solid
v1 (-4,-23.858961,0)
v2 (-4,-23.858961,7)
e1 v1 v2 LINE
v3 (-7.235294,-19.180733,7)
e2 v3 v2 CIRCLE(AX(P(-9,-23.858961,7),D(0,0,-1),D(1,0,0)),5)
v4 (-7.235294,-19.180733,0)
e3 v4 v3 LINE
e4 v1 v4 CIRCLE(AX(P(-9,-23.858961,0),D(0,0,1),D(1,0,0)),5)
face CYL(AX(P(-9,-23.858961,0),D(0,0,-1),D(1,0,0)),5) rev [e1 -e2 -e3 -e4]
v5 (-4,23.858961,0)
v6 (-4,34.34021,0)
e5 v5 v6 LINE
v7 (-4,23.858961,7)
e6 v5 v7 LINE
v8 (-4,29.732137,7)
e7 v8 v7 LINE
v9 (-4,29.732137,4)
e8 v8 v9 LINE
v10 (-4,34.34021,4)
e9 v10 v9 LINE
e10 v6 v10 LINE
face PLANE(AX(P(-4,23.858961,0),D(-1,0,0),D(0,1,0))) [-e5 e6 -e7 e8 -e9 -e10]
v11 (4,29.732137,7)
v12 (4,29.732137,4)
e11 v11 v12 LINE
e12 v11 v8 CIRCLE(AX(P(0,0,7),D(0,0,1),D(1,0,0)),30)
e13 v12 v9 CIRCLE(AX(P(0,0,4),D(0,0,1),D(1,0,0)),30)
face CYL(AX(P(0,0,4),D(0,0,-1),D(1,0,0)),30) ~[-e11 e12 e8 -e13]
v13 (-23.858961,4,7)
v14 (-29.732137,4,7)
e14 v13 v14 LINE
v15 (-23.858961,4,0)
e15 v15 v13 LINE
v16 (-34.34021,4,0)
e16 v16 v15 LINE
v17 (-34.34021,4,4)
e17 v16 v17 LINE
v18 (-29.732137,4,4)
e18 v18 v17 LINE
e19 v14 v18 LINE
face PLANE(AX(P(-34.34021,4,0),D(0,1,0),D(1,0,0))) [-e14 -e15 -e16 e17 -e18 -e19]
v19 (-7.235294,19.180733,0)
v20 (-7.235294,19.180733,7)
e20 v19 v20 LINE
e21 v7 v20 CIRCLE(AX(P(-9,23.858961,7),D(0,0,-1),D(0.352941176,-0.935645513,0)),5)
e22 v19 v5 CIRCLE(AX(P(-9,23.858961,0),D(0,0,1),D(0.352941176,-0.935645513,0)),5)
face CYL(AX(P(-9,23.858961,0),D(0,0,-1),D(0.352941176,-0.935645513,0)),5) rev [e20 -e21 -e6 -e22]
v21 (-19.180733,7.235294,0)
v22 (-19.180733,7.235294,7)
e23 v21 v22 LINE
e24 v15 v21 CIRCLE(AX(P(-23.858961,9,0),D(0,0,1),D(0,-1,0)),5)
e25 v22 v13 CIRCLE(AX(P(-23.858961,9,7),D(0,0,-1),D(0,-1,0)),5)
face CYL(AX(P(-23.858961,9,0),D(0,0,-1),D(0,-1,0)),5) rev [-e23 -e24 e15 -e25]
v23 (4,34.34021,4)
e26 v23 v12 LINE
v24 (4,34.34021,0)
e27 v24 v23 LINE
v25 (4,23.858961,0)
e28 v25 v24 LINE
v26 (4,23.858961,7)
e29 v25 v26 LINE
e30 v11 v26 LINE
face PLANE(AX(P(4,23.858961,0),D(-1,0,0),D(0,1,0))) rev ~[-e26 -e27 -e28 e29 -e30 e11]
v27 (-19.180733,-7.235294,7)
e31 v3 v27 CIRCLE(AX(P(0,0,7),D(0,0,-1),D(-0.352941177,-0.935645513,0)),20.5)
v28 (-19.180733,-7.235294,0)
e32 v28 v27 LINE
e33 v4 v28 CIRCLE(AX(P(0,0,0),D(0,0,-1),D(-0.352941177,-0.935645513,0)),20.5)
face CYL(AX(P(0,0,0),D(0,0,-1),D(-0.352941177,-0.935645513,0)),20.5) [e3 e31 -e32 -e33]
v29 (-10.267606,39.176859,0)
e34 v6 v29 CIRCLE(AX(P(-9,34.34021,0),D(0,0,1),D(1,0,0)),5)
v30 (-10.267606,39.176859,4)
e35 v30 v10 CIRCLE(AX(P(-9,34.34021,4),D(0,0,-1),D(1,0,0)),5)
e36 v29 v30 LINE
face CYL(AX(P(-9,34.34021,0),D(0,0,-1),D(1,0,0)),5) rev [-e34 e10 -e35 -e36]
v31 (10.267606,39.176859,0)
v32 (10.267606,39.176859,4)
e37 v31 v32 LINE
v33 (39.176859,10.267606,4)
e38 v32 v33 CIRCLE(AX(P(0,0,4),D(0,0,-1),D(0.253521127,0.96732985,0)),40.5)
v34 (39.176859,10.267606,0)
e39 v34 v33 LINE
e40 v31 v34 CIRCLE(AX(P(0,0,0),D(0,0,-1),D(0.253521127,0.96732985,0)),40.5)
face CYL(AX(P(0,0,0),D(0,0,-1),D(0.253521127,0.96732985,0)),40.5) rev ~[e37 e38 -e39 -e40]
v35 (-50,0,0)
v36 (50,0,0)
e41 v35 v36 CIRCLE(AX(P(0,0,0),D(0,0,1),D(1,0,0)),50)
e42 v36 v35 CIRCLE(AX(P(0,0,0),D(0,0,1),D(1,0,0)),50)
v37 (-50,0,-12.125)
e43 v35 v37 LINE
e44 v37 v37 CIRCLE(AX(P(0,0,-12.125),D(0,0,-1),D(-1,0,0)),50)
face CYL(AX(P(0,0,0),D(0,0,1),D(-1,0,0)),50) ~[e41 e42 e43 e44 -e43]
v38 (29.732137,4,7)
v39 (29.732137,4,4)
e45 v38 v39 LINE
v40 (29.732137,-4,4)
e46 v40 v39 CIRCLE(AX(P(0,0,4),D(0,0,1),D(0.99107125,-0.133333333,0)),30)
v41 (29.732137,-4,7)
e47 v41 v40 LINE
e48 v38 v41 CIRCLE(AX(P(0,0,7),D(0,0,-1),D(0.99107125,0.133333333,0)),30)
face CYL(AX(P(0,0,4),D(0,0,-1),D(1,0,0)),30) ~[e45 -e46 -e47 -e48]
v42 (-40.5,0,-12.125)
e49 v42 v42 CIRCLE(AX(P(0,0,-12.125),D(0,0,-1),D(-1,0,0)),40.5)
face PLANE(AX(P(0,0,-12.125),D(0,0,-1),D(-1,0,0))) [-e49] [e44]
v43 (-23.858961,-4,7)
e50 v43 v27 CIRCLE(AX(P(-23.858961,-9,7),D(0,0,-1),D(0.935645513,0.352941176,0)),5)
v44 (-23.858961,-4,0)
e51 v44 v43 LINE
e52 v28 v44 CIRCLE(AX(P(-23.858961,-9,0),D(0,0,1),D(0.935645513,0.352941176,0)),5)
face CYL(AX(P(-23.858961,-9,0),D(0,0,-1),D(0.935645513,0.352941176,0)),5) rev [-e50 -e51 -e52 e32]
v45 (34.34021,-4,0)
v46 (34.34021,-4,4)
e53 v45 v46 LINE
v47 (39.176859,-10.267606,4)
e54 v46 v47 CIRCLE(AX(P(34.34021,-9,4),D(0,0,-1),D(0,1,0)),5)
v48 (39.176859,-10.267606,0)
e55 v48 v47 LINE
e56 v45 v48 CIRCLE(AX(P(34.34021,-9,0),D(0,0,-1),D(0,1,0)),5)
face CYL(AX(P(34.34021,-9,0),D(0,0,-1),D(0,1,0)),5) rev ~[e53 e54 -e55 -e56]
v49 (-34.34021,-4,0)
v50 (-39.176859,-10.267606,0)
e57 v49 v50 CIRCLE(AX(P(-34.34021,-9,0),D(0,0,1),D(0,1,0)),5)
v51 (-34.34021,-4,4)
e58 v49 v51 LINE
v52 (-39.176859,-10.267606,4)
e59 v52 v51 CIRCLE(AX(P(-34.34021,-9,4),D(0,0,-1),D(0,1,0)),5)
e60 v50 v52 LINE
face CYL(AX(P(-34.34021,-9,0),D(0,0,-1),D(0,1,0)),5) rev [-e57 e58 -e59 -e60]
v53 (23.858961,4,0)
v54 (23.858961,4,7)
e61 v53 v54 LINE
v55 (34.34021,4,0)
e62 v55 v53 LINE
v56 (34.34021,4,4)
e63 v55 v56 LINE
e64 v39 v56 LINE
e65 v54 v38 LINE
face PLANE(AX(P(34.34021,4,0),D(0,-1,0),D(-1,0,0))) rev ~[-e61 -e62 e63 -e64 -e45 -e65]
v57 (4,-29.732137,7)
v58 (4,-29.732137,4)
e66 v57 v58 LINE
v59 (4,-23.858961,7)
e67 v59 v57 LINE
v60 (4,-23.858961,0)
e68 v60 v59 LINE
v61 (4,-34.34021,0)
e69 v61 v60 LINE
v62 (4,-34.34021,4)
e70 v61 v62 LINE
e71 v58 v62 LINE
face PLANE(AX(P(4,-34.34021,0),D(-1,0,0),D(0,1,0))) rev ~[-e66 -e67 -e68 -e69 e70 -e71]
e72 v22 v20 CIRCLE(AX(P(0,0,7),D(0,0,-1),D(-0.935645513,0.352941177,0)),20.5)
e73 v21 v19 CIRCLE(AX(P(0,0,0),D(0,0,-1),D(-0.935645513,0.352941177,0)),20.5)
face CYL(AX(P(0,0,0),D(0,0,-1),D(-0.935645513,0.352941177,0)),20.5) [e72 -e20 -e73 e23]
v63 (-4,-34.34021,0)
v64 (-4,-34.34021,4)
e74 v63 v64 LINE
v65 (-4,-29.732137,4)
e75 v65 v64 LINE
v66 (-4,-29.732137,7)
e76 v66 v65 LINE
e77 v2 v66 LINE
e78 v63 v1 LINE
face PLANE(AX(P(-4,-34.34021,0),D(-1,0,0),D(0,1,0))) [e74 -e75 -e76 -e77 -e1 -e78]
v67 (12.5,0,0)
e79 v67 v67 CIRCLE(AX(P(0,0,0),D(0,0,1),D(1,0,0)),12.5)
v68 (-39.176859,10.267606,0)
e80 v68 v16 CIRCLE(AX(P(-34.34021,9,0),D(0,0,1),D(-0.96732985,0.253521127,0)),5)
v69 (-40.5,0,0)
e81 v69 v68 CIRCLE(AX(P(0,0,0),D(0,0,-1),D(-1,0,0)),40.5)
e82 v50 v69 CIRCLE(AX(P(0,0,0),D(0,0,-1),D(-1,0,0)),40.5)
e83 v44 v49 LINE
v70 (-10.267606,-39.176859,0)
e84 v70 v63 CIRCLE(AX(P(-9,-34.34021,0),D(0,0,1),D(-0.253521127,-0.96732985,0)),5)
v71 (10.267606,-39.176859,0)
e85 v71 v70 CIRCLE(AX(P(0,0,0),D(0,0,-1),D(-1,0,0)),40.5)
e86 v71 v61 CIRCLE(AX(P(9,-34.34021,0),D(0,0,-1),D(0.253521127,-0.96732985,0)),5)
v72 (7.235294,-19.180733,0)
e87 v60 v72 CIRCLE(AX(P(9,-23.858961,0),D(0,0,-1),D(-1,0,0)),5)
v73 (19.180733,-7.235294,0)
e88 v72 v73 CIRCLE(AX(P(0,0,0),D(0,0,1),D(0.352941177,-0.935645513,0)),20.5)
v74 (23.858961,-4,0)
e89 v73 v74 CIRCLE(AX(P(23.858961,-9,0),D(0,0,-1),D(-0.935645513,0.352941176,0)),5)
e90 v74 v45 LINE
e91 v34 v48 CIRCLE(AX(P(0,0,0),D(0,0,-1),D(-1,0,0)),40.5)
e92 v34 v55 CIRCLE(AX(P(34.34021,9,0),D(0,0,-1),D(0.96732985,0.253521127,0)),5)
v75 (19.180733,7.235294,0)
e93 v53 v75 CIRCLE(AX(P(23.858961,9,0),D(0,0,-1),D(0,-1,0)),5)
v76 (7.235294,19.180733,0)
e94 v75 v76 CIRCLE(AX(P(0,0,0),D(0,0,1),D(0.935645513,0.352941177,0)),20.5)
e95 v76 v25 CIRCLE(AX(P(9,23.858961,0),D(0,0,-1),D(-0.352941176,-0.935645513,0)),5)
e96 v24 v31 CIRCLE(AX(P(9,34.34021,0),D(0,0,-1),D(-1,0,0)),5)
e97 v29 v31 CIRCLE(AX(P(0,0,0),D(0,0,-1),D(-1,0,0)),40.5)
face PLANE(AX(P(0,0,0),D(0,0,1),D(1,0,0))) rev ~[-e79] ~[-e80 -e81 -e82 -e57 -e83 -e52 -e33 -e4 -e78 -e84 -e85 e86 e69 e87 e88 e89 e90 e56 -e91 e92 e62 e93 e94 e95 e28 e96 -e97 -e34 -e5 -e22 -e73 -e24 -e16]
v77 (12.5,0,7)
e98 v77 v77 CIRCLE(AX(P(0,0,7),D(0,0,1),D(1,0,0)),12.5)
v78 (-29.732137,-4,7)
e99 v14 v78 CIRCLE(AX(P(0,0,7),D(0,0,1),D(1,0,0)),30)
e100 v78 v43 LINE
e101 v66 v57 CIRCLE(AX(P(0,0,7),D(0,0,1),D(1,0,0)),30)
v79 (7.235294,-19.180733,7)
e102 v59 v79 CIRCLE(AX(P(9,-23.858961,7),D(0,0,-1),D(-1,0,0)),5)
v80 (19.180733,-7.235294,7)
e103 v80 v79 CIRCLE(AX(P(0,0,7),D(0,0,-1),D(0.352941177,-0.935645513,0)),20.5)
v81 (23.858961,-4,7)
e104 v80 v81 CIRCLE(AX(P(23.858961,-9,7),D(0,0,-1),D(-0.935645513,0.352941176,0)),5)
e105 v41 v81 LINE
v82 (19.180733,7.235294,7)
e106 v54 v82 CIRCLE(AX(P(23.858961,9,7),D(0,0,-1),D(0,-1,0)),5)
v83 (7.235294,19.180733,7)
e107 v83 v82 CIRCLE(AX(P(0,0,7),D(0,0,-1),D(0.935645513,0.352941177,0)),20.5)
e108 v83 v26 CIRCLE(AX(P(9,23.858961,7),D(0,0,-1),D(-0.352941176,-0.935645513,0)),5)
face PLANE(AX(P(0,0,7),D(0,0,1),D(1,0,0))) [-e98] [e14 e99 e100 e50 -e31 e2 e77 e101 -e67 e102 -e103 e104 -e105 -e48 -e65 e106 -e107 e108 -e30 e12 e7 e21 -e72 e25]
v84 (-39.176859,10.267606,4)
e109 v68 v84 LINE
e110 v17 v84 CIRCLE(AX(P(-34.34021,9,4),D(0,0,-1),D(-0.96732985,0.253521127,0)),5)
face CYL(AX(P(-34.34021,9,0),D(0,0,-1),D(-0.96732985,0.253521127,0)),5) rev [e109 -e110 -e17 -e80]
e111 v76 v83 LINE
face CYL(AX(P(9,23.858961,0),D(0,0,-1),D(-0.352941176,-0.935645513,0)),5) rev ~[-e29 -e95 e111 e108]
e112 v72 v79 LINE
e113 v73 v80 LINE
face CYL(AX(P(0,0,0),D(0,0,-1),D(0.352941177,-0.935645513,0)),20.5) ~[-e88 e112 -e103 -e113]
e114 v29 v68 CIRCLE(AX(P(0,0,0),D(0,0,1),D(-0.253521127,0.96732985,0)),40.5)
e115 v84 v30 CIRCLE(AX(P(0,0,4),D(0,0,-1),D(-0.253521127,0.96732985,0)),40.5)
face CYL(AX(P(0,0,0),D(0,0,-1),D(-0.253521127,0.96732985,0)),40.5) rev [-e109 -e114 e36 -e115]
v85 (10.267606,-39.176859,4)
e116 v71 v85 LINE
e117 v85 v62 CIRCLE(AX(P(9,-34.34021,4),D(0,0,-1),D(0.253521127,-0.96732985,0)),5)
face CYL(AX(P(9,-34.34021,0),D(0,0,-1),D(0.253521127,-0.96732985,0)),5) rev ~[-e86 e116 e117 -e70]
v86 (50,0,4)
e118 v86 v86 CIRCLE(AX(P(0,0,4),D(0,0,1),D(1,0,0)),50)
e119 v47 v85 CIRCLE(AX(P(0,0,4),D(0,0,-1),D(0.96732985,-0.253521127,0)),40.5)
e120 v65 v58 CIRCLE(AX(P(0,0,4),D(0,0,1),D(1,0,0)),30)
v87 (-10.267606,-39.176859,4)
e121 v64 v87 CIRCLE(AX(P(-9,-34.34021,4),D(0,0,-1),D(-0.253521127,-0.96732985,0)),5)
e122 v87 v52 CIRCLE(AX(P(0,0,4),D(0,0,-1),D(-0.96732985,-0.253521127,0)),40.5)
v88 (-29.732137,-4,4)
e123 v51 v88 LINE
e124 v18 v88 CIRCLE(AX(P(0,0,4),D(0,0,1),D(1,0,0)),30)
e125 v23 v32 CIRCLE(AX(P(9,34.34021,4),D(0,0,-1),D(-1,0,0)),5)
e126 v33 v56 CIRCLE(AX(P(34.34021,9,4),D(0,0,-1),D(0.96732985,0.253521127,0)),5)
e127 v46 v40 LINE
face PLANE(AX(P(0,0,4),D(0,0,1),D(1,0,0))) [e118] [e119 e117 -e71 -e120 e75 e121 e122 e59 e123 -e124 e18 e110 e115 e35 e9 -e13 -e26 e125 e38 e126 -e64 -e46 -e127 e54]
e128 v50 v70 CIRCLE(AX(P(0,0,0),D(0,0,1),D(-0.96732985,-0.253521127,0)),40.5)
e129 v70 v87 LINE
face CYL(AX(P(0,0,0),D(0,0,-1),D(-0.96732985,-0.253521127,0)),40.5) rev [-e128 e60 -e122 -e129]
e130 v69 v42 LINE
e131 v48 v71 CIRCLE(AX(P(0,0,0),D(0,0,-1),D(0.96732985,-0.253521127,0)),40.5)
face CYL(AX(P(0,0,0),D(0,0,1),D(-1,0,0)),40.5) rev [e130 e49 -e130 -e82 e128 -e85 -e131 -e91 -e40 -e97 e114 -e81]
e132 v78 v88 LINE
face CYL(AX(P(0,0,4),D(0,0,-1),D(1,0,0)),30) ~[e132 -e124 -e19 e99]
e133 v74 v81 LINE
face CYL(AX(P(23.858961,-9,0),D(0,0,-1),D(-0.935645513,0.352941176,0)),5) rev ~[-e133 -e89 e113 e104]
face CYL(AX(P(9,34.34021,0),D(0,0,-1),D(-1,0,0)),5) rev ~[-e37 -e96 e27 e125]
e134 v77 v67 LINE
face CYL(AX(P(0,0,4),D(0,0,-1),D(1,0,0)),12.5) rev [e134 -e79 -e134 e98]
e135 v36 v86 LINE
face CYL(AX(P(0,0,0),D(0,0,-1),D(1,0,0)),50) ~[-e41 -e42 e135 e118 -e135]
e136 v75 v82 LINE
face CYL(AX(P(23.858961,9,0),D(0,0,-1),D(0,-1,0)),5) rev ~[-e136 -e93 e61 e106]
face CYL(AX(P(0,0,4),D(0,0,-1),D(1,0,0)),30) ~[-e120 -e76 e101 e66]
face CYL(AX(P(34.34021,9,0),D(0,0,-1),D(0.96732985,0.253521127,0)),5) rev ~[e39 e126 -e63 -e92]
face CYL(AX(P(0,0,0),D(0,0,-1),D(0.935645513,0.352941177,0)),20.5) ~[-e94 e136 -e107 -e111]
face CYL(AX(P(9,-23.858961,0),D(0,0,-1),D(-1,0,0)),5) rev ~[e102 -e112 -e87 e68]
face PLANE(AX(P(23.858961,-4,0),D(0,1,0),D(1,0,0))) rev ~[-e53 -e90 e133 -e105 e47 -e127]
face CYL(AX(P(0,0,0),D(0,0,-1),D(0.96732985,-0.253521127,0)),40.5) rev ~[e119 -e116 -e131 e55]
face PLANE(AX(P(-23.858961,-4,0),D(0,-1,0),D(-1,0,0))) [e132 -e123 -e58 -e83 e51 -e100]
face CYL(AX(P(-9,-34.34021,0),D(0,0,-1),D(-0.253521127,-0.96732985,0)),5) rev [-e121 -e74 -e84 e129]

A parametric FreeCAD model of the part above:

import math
import FreeCAD as App
import Part
import Sketcher
from FreeCAD import Vector

doc = App.newDocument("Part")
body = doc.addObject("PartDesign::Body", "Body")

sketch1 = doc.addObject("Sketcher::SketchObject", "Sketch")
body.addObject(sketch1)
sketch1.AttachmentSupport = (doc.XY_Plane, [""])
sketch1.MapMode = "FlatFace"
sketch1.addGeometry([
    Part.Circle(Vector(0, 0, 0), Vector(0, 0, 1), 50),
    Part.Circle(Vector(0, 0, 0), Vector(0, 0, 1), 12.5),
], False)
sketch1.addConstraint([
    Sketcher.Constraint("Coincident", 0, 3, -1, 1),
    Sketcher.Constraint("Coincident", 1, 3, -1, 1),
    Sketcher.Constraint("Diameter", 0, 100.0),
    Sketcher.Constraint("Diameter", 1, 25.0),
])
pad1 = doc.addObject("PartDesign::Pad", "Pad")
body.addObject(pad1)
pad1.Profile = sketch1
pad1.Length = 4

sketch2 = doc.addObject("Sketcher::SketchObject", "Sketch001")
body.addObject(sketch2)
sketch2.AttachmentSupport = (doc.XY_Plane, [""])
sketch2.MapMode = "FlatFace"
sketch2.AttachmentOffset = App.Placement(Vector(0, 0, 4), App.Rotation())
sketch2.addGeometry([
    Part.Circle(Vector(0, 0, 0), Vector(0, 0, 1), 30),
    Part.Circle(Vector(0, 0, 0), Vector(0, 0, 1), 12.5),
], False)
sketch2.addConstraint([
    Sketcher.Constraint("Coincident", 0, 3, -1, 1),
    Sketcher.Constraint("Coincident", 1, 3, -1, 1),
    Sketcher.Constraint("Diameter", 0, 60.0),
    Sketcher.Constraint("Diameter", 1, 25.0),
])
pad2 = doc.addObject("PartDesign::Pad", "Pad001")
body.addObject(pad2)
pad2.Profile = sketch2
pad2.Length = 3

sketch3 = doc.addObject("Sketcher::SketchObject", "Sketch002")
body.addObject(sketch3)
sketch3.AttachmentSupport = (doc.XY_Plane, [""])
sketch3.MapMode = "FlatFace"
sketch3.addGeometry([
    Part.LineSegment(Vector(4, 23.858961, 0), Vector(4, 34.34021, 0)),
    Part.ArcOfCircle(Part.Circle(Vector(9, 34.34021, 0), Vector(0, 0, 1), 5), math.radians(75.314027), math.radians(180)),
    Part.ArcOfCircle(Part.Circle(Vector(0, 0, 0), Vector(0, 0, 1), 40.5), math.radians(14.685973), math.radians(75.314027)),
    Part.ArcOfCircle(Part.Circle(Vector(34.34021, 9, 0), Vector(0, 0, 1), 5), math.radians(-90), math.radians(14.685973)),
    Part.LineSegment(Vector(34.34021, 4, 0), Vector(23.858961, 4, 0)),
    Part.ArcOfCircle(Part.Circle(Vector(23.858961, 9, 0), Vector(0, 0, 1), 5), math.radians(-159.332684), math.radians(-90)),
    Part.ArcOfCircle(Part.Circle(Vector(0, 0, 0), Vector(0, 0, 1), 20.5), math.radians(20.667317), math.radians(69.332683)),
    Part.ArcOfCircle(Part.Circle(Vector(9, 23.858961, 0), Vector(0, 0, 1), 5), math.radians(180), math.radians(249.332684)),
    Part.LineSegment(Vector(-4, 34.34021, 0), Vector(-4, 23.858961, 0)),
    Part.ArcOfCircle(Part.Circle(Vector(-9, 23.858961, 0), Vector(0, 0, 1), 5), math.radians(-69.332684), math.radians(0)),
    Part.ArcOfCircle(Part.Circle(Vector(0, 0, 0), Vector(0, 0, 1), 20.5), math.radians(110.667317), math.radians(159.332683)),
    Part.ArcOfCircle(Part.Circle(Vector(-23.858961, 9, 0), Vector(0, 0, 1), 5), math.radians(-90), math.radians(-20.667316)),
    Part.LineSegment(Vector(-23.858961, 4, 0), Vector(-34.34021, 4, 0)),
    Part.ArcOfCircle(Part.Circle(Vector(-34.34021, 9, 0), Vector(0, 0, 1), 5), math.radians(165.314027), math.radians(270)),
    Part.ArcOfCircle(Part.Circle(Vector(0, 0, 0), Vector(0, 0, 1), 40.5), math.radians(104.685973), math.radians(165.314027)),
    Part.ArcOfCircle(Part.Circle(Vector(-9, 34.34021, 0), Vector(0, 0, 1), 5), math.radians(0), math.radians(104.685973)),
    Part.LineSegment(Vector(23.858961, -4, 0), Vector(34.34021, -4, 0)),
    Part.ArcOfCircle(Part.Circle(Vector(34.34021, -9, 0), Vector(0, 0, 1), 5), math.radians(-14.685973), math.radians(90)),
    Part.ArcOfCircle(Part.Circle(Vector(0, 0, 0), Vector(0, 0, 1), 40.5), math.radians(-75.314027), math.radians(-14.685973)),
    Part.ArcOfCircle(Part.Circle(Vector(9, -34.34021, 0), Vector(0, 0, 1), 5), math.radians(180), math.radians(284.685973)),
    Part.LineSegment(Vector(4, -34.34021, 0), Vector(4, -23.858961, 0)),
    Part.ArcOfCircle(Part.Circle(Vector(9, -23.858961, 0), Vector(0, 0, 1), 5), math.radians(110.667316), math.radians(180)),
    Part.ArcOfCircle(Part.Circle(Vector(0, 0, 0), Vector(0, 0, 1), 20.5), math.radians(-69.332683), math.radians(-20.667317)),
    Part.ArcOfCircle(Part.Circle(Vector(23.858961, -9, 0), Vector(0, 0, 1), 5), math.radians(90), math.radians(159.332684)),
    Part.LineSegment(Vector(-34.34021, -4, 0), Vector(-23.858961, -4, 0)),
    Part.ArcOfCircle(Part.Circle(Vector(-23.858961, -9, 0), Vector(0, 0, 1), 5), math.radians(20.667316), math.radians(90)),
    Part.ArcOfCircle(Part.Circle(Vector(0, 0, 0), Vector(0, 0, 1), 20.5), math.radians(-159.332683), math.radians(-110.667317)),
    Part.ArcOfCircle(Part.Circle(Vector(-9, -23.858961, 0), Vector(0, 0, 1), 5), math.radians(0), math.radians(69.332684)),
    Part.LineSegment(Vector(-4, -23.858961, 0), Vector(-4, -34.34021, 0)),
    Part.ArcOfCircle(Part.Circle(Vector(-9, -34.34021, 0), Vector(0, 0, 1), 5), math.radians(-104.685973), math.radians(0)),
    Part.ArcOfCircle(Part.Circle(Vector(0, 0, 0), Vector(0, 0, 1), 40.5), math.radians(-165.314027), math.radians(-104.685973)),
    Part.ArcOfCircle(Part.Circle(Vector(-34.34021, -9, 0), Vector(0, 0, 1), 5), math.radians(90), math.radians(194.685973)),
], False)
sketch3.addConstraint([
    Sketcher.Constraint("Tangent", 0, 2, 1, 2),
    Sketcher.Constraint("Tangent", 1, 1, 2, 2),
    Sketcher.Constraint("Tangent", 2, 1, 3, 2),
    Sketcher.Constraint("Tangent", 3, 1, 4, 1),
    Sketcher.Constraint("Tangent", 4, 2, 5, 2),
    Sketcher.Constraint("Tangent", 5, 1, 6, 1),
    Sketcher.Constraint("Tangent", 6, 2, 7, 2),
    Sketcher.Constraint("Tangent", 7, 1, 0, 1),
    Sketcher.Constraint("Tangent", 8, 2, 9, 2),
    Sketcher.Constraint("Tangent", 9, 1, 10, 1),
    Sketcher.Constraint("Tangent", 10, 2, 11, 2),
    Sketcher.Constraint("Tangent", 11, 1, 12, 1),
    Sketcher.Constraint("Tangent", 12, 2, 13, 2),
    Sketcher.Constraint("Tangent", 13, 1, 14, 2),
    Sketcher.Constraint("Tangent", 14, 1, 15, 2),
    Sketcher.Constraint("Tangent", 15, 1, 8, 1),
    Sketcher.Constraint("Tangent", 16, 2, 17, 2),
    Sketcher.Constraint("Tangent", 17, 1, 18, 2),
    Sketcher.Constraint("Tangent", 18, 1, 19, 2),
    Sketcher.Constraint("Tangent", 19, 1, 20, 1),
    Sketcher.Constraint("Tangent", 20, 2, 21, 2),
    Sketcher.Constraint("Tangent", 21, 1, 22, 1),
    Sketcher.Constraint("Tangent", 22, 2, 23, 2),
    Sketcher.Constraint("Tangent", 23, 1, 16, 1),
    Sketcher.Constraint("Tangent", 24, 2, 25, 2),
    Sketcher.Constraint("Tangent", 25, 1, 26, 1),
    Sketcher.Constraint("Tangent", 26, 2, 27, 2),
    Sketcher.Constraint("Tangent", 27, 1, 28, 1),
    Sketcher.Constraint("Tangent", 28, 2, 29, 2),
    Sketcher.Constraint("Tangent", 29, 1, 30, 2),
    Sketcher.Constraint("Tangent", 30, 1, 31, 2),
    Sketcher.Constraint("Tangent", 31, 1, 24, 1),
    Sketcher.Constraint("Vertical", 0),
    Sketcher.Constraint("Horizontal", 4),
    Sketcher.Constraint("Vertical", 8),
    Sketcher.Constraint("Horizontal", 12),
    Sketcher.Constraint("Horizontal", 16),
    Sketcher.Constraint("Vertical", 20),
    Sketcher.Constraint("Horizontal", 24),
    Sketcher.Constraint("Vertical", 28),
    Sketcher.Constraint("Coincident", 2, 3, -1, 1),
    Sketcher.Constraint("Coincident", 6, 3, -1, 1),
    Sketcher.Constraint("Coincident", 10, 3, -1, 1),
    Sketcher.Constraint("Coincident", 14, 3, -1, 1),
    Sketcher.Constraint("Coincident", 18, 3, -1, 1),
    Sketcher.Constraint("Coincident", 22, 3, -1, 1),
    Sketcher.Constraint("Coincident", 26, 3, -1, 1),
    Sketcher.Constraint("Coincident", 30, 3, -1, 1),
    Sketcher.Constraint("Equal", 1, 3),
    Sketcher.Constraint("Equal", 3, 5),
    Sketcher.Constraint("Equal", 5, 7),
    Sketcher.Constraint("Equal", 7, 9),
    Sketcher.Constraint("Equal", 6, 10),
    Sketcher.Constraint("Equal", 9, 11),
    Sketcher.Constraint("Equal", 11, 13),
    Sketcher.Constraint("Equal", 2, 14),
    Sketcher.Constraint("Equal", 13, 15),
    Sketcher.Constraint("Equal", 15, 17),
    Sketcher.Constraint("Equal", 14, 18),
    Sketcher.Constraint("Equal", 17, 19),
    Sketcher.Constraint("Equal", 19, 21),
    Sketcher.Constraint("Equal", 10, 22),
    Sketcher.Constraint("Equal", 21, 23),
    Sketcher.Constraint("Equal", 23, 25),
    Sketcher.Constraint("Equal", 22, 26),
    Sketcher.Constraint("Equal", 25, 27),
    Sketcher.Constraint("Equal", 27, 29),
    Sketcher.Constraint("Equal", 18, 30),
    Sketcher.Constraint("Equal", 29, 31),
    Sketcher.Constraint("Horizontal", 7, 3, 9, 3),
    Sketcher.Constraint("Horizontal", 5, 3, 11, 3),
    Sketcher.Constraint("Horizontal", 23, 3, 25, 3),
    Sketcher.Constraint("Horizontal", 21, 3, 27, 3),
    Sketcher.Constraint("Vertical", 3, 3, 17, 3),
    Sketcher.Constraint("Vertical", 7, 3, 19, 3),
    Sketcher.Constraint("Equal", 24, 0),
    Sketcher.Constraint("Radius", 1, 5.0),
    Sketcher.Constraint("Radius", 2, 40.5),
    Sketcher.Constraint("Radius", 6, 20.5),
    Sketcher.Constraint("DistanceX", -1, 1, 1, 3, 9.0),
])
pocket1 = doc.addObject("PartDesign::Pocket", "Pocket")
body.addObject(pocket1)
pocket1.Profile = sketch3
pocket1.Length = 23
pocket1.Reversed = True

sketch4 = doc.addObject("Sketcher::SketchObject", "Sketch003")
body.addObject(sketch4)
sketch4.AttachmentSupport = (doc.XY_Plane, [""])
sketch4.MapMode = "FlatFace"
sketch4.addGeometry([
    Part.Circle(Vector(0, 0, 0), Vector(0, 0, 1), 50),
    Part.Circle(Vector(0, 0, 0), Vector(0, 0, 1), 40.5),
], False)
sketch4.addConstraint([
    Sketcher.Constraint("Coincident", 0, 3, -1, 1),
    Sketcher.Constraint("Coincident", 1, 3, -1, 1),
    Sketcher.Constraint("Diameter", 0, 100.0),
    Sketcher.Constraint("Diameter", 1, 81.0),
])
pad3 = doc.addObject("PartDesign::Pad", "Pad002")
body.addObject(pad3)
pad3.Profile = sketch4
pad3.Length = 12.125
pad3.Reversed = True

doc.recompute()
